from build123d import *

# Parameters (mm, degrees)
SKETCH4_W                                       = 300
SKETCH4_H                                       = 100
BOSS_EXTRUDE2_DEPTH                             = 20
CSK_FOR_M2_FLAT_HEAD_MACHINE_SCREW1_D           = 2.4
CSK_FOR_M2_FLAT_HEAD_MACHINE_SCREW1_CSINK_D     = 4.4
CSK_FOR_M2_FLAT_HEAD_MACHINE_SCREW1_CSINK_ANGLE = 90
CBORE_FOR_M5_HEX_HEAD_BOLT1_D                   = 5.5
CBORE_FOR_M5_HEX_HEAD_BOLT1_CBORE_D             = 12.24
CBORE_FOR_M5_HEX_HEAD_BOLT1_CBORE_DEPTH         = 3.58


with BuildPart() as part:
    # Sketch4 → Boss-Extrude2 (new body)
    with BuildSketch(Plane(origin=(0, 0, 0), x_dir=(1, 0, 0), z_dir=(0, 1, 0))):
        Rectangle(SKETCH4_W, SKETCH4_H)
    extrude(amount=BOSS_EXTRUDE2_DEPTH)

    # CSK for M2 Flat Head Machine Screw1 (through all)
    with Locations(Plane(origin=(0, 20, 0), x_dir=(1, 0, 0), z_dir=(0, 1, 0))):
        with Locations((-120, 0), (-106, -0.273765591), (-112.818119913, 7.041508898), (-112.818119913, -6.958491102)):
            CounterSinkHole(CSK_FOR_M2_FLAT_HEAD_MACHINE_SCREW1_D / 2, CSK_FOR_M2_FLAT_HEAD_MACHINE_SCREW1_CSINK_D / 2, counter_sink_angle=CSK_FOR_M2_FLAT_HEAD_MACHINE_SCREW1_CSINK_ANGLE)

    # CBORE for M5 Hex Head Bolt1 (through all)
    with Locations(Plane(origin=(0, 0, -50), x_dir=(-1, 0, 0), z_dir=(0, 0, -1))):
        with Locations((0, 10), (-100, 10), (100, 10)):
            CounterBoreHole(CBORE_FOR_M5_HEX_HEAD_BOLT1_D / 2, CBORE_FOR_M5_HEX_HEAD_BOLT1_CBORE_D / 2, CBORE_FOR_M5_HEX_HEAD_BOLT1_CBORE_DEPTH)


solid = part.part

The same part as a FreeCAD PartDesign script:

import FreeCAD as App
import Part
import Sketcher
from FreeCAD import Vector

doc = App.newDocument("Part")
body = doc.addObject("PartDesign::Body", "Body")

sketch1 = doc.addObject("Sketcher::SketchObject", "Sketch")
body.addObject(sketch1)
sketch1.AttachmentSupport = (doc.XZ_Plane, [""])
sketch1.MapMode = "FlatFace"
sketch1.addGeometry(Part.LineSegment(Vector(-150, -50, 0), Vector(-150, 50, 0)), False)
sketch1.addGeometry(Part.LineSegment(Vector(-150, 50, 0), Vector(150, 50, 0)), False)
sketch1.addGeometry(Part.LineSegment(Vector(150, 50, 0), Vector(150, -50, 0)), False)
sketch1.addGeometry(Part.LineSegment(Vector(150, -50, 0), Vector(-150, -50, 0)), False)
sketch1.addConstraint(Sketcher.Constraint("Coincident", 0, 2, 1, 1))
sketch1.addConstraint(Sketcher.Constraint("Coincident", 1, 2, 2, 1))
sketch1.addConstraint(Sketcher.Constraint("Coincident", 2, 2, 3, 1))
sketch1.addConstraint(Sketcher.Constraint("Coincident", 3, 2, 0, 1))
sketch1.addConstraint(Sketcher.Constraint("Vertical", 0))
sketch1.addConstraint(Sketcher.Constraint("Horizontal", 1))
sketch1.addConstraint(Sketcher.Constraint("Vertical", 2))
sketch1.addConstraint(Sketcher.Constraint("Horizontal", 3))
sketch1.addConstraint(Sketcher.Constraint("Symmetric", 0, 2, 2, 2, -1, 1))
sketch1.addConstraint(Sketcher.Constraint("DistanceX", 1, 1, 1, 2, 300.0))
sketch1.addConstraint(Sketcher.Constraint("DistanceY", 0, 1, 0, 2, 100.0))
pad1 = doc.addObject("PartDesign::Pad", "Pad")
body.addObject(pad1)
pad1.Profile = sketch1
pad1.Length = 20
pad1.Reversed = True

sketch2 = doc.addObject("Sketcher::SketchObject", "Sketch001")
body.addObject(sketch2)
sketch2.AttachmentSupport = (doc.XZ_Plane, [""])
sketch2.MapMode = "FlatFace"
sketch2.AttachmentOffset = App.Placement(Vector(0, 0, -20), App.Rotation())
sketch2.addGeometry(Part.Circle(Vector(-120, 0, 0), Vector(0, 0, 1), 1.2), False)
sketch2.addGeometry(Part.Circle(Vector(-106, 0.3, 0), Vector(0, 0, 1), 1.2), False)
sketch2.addGeometry(Part.Circle(Vector(-112.8, -7, 0), Vector(0, 0, 1), 1.2), False)
sketch2.addGeometry(Part.Circle(Vector(-112.8, 7, 0), Vector(0, 0, 1), 1.2), False)
sketch2.addConstraint(Sketcher.Constraint("Equal", 0, 1))
sketch2.addConstraint(Sketcher.Constraint("Equal", 1, 2))
sketch2.addConstraint(Sketcher.Constraint("Equal", 2, 3))
sketch2.addConstraint(Sketcher.Constraint("PointOnObject", 0, 3, -1))
sketch2.addConstraint(Sketcher.Constraint("Vertical", 2, 3, 3, 3))
sketch2.addConstraint(Sketcher.Constraint("Diameter", 0, 2.4))
sketch2.addConstraint(Sketcher.Constraint("DistanceX", 0, 3, -1, 1, 120.0))
sketch2.addConstraint(Sketcher.Constraint("DistanceX", 1, 3, -1, 1, 106.0))
sketch2.addConstraint(Sketcher.Constraint("DistanceY", 2, 3, 3, 3, 14.0))
sketch2.addConstraint(Sketcher.Constraint("DistanceX", 2, 3, -1, 1, 112.81812))
sketch2.addConstraint(Sketcher.Constraint("DistanceY", 2, 3, -1, 1, 7.041509))
sketch2.addConstraint(Sketcher.Constraint("DistanceY", -1, 1, 1, 3, 0.273766))
doc.recompute()
hole = doc.addObject("PartDesign::Hole", "Hole")
body.addObject(hole)
hole.Profile = sketch2
hole.ThreadType = "None"
hole.Diameter = 2.4
hole.DepthType = "ThroughAll"
hole.HoleCutType = "Countersink"
hole.HoleCutDiameter = 4.4
hole.HoleCutCountersinkAngle = 90
hole.Reversed = True

sketch3 = doc.addObject("Sketcher::SketchObject", "Sketch002")
body.addObject(sketch3)
sketch3.AttachmentSupport = (doc.XY_Plane, [""])
sketch3.MapMode = "FlatFace"
sketch3.AttachmentOffset = App.Placement(Vector(0, 0, -50), App.Rotation())
sketch3.addGeometry(Part.Circle(Vector(0, 10, 0), Vector(0, 0, 1), 2.8), False)
sketch3.addGeometry(Part.Circle(Vector(100, 10, 0), Vector(0, 0, 1), 2.8), False)
sketch3.addGeometry(Part.Circle(Vector(-100, 10, 0), Vector(0, 0, 1), 2.8), False)
sketch3.addConstraint(Sketcher.Constraint("Equal", 0, 1))
sketch3.addConstraint(Sketcher.Constraint("Equal", 1, 2))
sketch3.addConstraint(Sketcher.Constraint("Symmetric", 1, 3, 2, 3, -2))
sketch3.addConstraint(Sketcher.Constraint("PointOnObject", 0, 3, -2))
sketch3.addConstraint(Sketcher.Constraint("Horizontal", 0, 3, 1, 3))
sketch3.addConstraint(Sketcher.Constraint("Diameter", 0, 5.5))
sketch3.addConstraint(Sketcher.Constraint("DistanceY", -1, 1, 0, 3, 10.0))
sketch3.addConstraint(Sketcher.Constraint("DistanceX", -1, 1, 1, 3, 100.0))
doc.recompute()
hole2 = doc.addObject("PartDesign::Hole", "Hole001")
body.addObject(hole2)
hole2.Profile = sketch3
hole2.ThreadType = "None"
hole2.Diameter = 5.5
hole2.DepthType = "ThroughAll"
hole2.HoleCutType = "Counterbore"
hole2.HoleCutDiameter = 12.24
hole2.HoleCutDepth = 3.58
hole2.Reversed = True

doc.recompute()
